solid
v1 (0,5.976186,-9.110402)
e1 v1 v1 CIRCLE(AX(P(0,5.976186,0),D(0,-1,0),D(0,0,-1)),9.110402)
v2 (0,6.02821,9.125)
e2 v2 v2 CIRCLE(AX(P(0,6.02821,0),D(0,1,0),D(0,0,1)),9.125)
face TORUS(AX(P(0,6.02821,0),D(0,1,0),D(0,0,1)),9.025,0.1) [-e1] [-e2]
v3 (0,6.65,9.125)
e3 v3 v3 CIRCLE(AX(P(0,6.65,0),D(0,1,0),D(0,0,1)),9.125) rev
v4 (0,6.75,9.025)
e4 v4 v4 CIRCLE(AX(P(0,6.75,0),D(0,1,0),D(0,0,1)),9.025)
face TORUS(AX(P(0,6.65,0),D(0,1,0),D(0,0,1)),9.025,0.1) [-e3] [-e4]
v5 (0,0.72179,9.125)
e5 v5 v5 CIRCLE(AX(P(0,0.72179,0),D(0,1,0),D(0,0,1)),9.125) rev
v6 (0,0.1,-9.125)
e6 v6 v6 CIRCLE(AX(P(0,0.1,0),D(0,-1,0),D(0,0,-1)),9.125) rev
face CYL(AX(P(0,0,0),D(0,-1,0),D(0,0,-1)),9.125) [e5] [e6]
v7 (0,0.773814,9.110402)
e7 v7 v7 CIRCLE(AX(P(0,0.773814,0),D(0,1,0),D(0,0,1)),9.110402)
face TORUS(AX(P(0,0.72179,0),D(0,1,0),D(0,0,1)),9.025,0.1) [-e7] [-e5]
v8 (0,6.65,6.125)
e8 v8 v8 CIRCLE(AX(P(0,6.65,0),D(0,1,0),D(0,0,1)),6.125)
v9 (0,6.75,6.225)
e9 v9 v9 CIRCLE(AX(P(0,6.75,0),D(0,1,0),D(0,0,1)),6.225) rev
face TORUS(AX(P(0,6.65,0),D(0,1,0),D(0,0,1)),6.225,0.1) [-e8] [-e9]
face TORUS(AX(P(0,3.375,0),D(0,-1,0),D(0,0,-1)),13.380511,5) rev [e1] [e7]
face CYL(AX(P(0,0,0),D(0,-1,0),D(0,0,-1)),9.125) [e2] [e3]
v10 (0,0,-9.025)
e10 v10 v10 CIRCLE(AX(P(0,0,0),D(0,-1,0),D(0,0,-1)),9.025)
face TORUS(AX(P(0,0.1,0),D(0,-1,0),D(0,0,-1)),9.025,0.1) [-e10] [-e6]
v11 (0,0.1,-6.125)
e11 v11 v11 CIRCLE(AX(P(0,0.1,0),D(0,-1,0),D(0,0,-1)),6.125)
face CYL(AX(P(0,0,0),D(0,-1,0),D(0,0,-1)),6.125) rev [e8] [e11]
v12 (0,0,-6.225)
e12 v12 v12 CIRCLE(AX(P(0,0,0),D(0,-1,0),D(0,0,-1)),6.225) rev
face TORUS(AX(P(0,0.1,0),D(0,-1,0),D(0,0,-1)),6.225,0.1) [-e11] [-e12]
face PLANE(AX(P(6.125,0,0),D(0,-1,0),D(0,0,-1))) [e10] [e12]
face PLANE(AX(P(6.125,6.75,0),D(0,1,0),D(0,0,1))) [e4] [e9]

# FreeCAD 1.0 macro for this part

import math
import FreeCAD as App
import Part
import Sketcher

V = App.Vector
Q = App.Units.Quantity


def edges_at(feature, points):
    """Names of the edges that pass closest to the given points."""
    edges = feature.Shape.Edges
    near = lambda p: min(range(len(edges)), key=lambda i: edges[i].distToShape(Part.Vertex(*p))[0])
    return sorted({f"Edge{near(p) + 1}" for p in points})

doc = App.newDocument("Part")
body = doc.addObject("PartDesign::Body", "Body")

sketch1 = body.newObject("Sketcher::SketchObject", "Sketch")
sketch1.AttachmentSupport = (doc.getObject("XY_Plane"), [""])
sketch1.MapMode = "FlatFace"
sketch1.addGeometry([
    Part.LineSegment(V(9.125, 6, 0), V(9.125, 6.75, 0)),
    Part.LineSegment(V(9.125, 6.75, 0), V(6.125, 6.75, 0)),
    Part.LineSegment(V(6.125, 6.75, 0), V(6.125, 0, 0)),
    Part.LineSegment(V(6.125, 0, 0), V(9.125, 0, 0)),
    Part.LineSegment(V(9.125, 0, 0), V(9.125, 0.75, 0)),
    Part.ArcOfCircle(Part.Circle(V(13.380511, 3.375, 0), V(0, 0, 1), 5), math.radians(148.331757), math.radians(211.668243)),
], False)
sketch1.addConstraint([
    Sketcher.Constraint("Coincident", 0, 2, 1, 1),
    Sketcher.Constraint("Coincident", 1, 2, 2, 1),
    Sketcher.Constraint("Coincident", 2, 2, 3, 1),
    Sketcher.Constraint("Coincident", 3, 2, 4, 1),
    Sketcher.Constraint("Coincident", 4, 2, 5, 2),
    Sketcher.Constraint("Coincident", 5, 1, 0, 1),
    Sketcher.Constraint("Vertical", 0),
    Sketcher.Constraint("Horizontal", 1),
    Sketcher.Constraint("Vertical", 2),
    Sketcher.Constraint("Horizontal", 3),
    Sketcher.Constraint("Vertical", 4),
    Sketcher.Constraint("PointOnObject", 2, 2, -1),
    Sketcher.Constraint("Vertical", 0, 2, 3, 2),
    Sketcher.Constraint("Equal", 0, 4),
    Sketcher.Constraint("Radius", 5, Q("5 mm")),
    Sketcher.Constraint("DistanceX", 1, 2, 1, 1, Q("3 mm")),
    Sketcher.Constraint("DistanceY", -1, 1, 5, 1, Q("6 mm")),
    Sketcher.Constraint("DistanceY", 0, 1, 0, 2, Q("0.75 mm")),
    Sketcher.Constraint("DistanceX", -1, 1, 0, 2, Q("9.125 mm")),
])
revolution = body.newObject("PartDesign::Revolution", "Revolution")
revolution.Profile = sketch1
revolution.ReferenceAxis = (sketch1, ["V_Axis"])
revolution.Angle = 360
doc.recompute()

fillet = body.newObject("PartDesign::Fillet", "Fillet")
fillet.Base = (revolution, edges_at(revolution, [
    (0, 6.75, 6.125),
    (0, 6.75, 9.125),
    (0, 6, 9.125),
    (0, 0.75, 9.125),
    (0, 0, 9.125),
    (0, 0, 6.125),
]))
fillet.Radius = 0.1

doc.recompute()
